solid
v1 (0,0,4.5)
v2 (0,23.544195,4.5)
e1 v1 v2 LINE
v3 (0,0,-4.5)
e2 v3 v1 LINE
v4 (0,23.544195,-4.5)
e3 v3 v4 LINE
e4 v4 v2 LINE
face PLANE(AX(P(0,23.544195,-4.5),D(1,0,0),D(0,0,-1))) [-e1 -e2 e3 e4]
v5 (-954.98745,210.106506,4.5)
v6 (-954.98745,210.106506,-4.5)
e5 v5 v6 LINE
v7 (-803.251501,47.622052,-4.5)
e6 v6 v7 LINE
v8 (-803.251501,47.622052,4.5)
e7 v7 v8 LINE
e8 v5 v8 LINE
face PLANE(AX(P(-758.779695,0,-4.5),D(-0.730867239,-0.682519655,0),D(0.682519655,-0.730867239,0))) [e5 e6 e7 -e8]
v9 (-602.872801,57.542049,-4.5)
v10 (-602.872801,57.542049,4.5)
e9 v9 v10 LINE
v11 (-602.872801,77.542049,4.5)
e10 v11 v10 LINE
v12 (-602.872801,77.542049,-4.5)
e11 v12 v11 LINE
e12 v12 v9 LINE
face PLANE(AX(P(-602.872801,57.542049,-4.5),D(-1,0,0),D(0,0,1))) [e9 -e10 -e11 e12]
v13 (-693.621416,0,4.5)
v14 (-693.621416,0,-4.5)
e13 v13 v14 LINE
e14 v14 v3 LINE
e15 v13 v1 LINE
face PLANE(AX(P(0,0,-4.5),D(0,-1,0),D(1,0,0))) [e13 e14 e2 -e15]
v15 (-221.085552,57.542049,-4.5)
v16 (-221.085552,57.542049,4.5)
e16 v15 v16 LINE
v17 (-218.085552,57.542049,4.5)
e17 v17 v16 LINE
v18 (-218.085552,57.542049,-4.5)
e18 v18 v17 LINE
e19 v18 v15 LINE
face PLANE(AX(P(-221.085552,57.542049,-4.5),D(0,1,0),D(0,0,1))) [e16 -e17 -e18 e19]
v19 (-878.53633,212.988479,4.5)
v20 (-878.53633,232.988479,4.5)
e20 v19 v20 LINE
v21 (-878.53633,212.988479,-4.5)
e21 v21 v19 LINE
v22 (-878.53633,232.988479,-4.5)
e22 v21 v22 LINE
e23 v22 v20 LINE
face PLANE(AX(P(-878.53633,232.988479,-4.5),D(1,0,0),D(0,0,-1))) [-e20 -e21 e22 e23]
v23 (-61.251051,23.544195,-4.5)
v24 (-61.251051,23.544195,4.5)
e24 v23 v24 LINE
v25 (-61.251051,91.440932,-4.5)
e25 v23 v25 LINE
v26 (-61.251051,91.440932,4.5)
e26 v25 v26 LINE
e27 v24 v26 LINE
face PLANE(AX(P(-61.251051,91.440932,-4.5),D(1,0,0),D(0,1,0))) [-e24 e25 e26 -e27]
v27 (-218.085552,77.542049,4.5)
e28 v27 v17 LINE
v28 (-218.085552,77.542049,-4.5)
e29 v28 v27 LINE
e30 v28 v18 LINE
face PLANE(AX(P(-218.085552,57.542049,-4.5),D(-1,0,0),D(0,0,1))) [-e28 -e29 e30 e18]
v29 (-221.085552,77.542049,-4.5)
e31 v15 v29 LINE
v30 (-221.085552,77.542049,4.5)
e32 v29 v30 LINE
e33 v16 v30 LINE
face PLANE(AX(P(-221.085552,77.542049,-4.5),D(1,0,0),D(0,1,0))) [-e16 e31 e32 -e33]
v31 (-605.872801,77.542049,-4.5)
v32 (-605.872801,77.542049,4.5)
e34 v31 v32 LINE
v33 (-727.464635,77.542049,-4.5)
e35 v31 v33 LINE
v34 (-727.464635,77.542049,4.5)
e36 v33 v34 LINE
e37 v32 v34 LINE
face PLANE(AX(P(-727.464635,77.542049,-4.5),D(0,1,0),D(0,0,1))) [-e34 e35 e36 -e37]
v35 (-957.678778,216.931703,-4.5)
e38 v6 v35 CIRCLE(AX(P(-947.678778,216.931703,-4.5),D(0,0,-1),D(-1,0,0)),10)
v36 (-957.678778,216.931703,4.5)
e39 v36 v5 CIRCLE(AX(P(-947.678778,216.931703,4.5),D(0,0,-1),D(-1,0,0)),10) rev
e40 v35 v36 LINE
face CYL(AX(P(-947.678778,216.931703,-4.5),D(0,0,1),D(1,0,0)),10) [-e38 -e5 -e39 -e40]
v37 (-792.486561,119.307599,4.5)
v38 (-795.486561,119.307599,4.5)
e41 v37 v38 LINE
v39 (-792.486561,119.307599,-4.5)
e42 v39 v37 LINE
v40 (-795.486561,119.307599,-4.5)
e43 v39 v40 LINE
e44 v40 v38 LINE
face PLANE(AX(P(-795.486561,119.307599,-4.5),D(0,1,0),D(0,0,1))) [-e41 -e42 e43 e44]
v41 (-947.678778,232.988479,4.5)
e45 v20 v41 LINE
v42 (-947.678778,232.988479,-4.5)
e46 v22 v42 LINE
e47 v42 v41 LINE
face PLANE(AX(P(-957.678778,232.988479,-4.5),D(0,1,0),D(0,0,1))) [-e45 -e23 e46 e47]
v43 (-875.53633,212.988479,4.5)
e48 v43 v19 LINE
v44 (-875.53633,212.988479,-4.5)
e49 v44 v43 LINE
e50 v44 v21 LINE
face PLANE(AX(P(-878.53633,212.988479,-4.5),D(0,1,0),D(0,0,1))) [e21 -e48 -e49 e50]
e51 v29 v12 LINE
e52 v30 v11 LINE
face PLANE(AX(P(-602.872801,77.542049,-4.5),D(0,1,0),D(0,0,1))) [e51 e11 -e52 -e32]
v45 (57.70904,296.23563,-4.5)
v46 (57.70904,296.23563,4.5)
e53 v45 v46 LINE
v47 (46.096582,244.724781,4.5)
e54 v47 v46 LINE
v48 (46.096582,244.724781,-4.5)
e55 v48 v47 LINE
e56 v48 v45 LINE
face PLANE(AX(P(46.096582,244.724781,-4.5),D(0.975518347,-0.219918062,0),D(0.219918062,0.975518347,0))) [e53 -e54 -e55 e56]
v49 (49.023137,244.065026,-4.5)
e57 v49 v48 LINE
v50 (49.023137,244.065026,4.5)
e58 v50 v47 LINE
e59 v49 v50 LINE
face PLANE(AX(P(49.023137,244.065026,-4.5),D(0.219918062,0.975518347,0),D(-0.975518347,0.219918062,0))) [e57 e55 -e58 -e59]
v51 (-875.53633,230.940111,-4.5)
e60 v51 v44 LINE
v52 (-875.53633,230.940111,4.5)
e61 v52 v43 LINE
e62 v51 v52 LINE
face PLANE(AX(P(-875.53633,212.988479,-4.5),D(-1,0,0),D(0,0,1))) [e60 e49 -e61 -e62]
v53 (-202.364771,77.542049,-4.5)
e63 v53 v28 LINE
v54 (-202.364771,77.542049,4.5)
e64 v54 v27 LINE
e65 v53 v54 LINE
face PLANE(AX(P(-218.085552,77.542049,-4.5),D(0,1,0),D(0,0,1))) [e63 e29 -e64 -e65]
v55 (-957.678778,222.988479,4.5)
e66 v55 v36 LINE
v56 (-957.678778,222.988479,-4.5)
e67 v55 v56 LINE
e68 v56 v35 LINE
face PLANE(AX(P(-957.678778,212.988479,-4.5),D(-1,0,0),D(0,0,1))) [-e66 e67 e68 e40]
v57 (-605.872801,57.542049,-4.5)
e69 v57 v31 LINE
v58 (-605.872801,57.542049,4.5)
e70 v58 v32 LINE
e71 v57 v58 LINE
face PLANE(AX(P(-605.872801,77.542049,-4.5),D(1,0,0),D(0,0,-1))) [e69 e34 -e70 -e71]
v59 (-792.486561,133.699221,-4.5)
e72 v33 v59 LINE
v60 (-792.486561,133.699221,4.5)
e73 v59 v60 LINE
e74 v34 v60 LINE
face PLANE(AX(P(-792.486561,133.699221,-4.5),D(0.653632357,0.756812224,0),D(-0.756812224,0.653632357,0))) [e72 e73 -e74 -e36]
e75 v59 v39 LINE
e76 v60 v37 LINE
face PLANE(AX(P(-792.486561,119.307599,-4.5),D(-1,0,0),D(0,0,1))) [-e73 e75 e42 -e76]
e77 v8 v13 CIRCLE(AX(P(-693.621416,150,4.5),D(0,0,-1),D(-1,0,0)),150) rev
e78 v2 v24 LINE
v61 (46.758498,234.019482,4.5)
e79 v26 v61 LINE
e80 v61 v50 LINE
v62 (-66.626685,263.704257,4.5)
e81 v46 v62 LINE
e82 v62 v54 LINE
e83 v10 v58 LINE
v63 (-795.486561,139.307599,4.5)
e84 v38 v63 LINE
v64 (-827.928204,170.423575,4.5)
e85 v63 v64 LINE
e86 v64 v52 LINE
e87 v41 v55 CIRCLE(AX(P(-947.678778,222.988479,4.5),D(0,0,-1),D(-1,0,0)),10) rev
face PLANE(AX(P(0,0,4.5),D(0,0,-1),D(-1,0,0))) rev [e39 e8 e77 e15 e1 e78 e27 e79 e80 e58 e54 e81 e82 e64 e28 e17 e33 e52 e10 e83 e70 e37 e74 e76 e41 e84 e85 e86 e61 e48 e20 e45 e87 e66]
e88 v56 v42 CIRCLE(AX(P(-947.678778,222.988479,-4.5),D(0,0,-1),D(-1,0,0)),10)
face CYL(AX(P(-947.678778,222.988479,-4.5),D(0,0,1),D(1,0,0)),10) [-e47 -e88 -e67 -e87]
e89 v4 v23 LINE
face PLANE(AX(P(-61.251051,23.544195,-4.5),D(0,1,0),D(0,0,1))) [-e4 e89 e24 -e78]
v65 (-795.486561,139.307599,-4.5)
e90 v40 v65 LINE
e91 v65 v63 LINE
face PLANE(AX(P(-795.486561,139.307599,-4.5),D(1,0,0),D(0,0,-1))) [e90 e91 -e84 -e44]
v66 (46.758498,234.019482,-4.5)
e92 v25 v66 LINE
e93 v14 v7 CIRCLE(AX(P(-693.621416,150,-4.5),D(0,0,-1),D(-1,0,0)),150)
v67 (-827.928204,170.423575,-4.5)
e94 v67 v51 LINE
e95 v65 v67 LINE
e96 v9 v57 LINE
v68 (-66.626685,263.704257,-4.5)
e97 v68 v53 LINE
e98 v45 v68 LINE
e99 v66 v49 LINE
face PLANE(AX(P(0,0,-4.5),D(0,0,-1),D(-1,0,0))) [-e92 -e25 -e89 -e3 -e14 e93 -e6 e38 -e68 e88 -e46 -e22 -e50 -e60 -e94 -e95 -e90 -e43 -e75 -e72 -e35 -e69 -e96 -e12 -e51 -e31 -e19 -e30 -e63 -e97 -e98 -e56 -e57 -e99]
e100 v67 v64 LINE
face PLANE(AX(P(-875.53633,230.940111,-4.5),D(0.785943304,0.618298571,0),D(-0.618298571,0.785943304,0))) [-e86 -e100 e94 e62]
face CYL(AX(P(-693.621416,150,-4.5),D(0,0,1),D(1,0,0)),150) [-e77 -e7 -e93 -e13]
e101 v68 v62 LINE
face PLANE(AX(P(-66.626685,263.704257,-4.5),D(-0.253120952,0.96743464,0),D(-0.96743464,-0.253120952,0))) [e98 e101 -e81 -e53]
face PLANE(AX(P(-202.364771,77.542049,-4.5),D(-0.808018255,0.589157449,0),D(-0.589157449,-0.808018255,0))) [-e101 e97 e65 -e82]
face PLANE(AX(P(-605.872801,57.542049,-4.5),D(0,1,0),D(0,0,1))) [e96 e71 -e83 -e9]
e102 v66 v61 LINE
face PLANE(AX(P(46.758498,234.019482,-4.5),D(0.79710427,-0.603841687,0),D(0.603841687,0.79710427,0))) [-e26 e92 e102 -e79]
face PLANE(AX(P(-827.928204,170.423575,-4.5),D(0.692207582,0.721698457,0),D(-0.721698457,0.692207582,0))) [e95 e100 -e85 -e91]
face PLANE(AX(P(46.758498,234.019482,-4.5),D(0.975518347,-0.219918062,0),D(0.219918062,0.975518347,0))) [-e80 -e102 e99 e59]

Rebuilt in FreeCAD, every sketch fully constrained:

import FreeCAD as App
import Part
import Sketcher


def edges_at(feature, points):
    """Names of the edges that pass closest to the given points."""
    edges = feature.Shape.Edges
    near = lambda p: min(range(len(edges)), key=lambda i: edges[i].distToShape(Part.Vertex(*p))[0])
    return sorted({f"Edge{near(p) + 1}" for p in points})


def add_polygon(sketch, points):
    """Adds a closed chain of lines whose ends are joined by coincident constraints."""
    first, n = sketch.GeometryCount, len(points)
    for a, b in zip(points, points[1:] + points[:1]):
        sketch.addGeometry(Part.LineSegment(App.Vector(*a, 0), App.Vector(*b, 0)), False)
    for i in range(n):
        sketch.addConstraint(Sketcher.Constraint("Coincident", first + i, 2, first + (i + 1) % n, 1))

doc = App.newDocument("Part")
body = doc.addObject("PartDesign::Body", "Body")

# Sketch on XY plane
sketch1 = body.newObject("Sketcher::SketchObject", "Sketch")
sketch1.AttachmentSupport = (doc.getObject("XY_Plane"), [""])
sketch1.MapMode = "FlatFace"
add_polygon(sketch1, [(-758.779695, 0), (0, 0), (0, 23.544195), (-61.251051, 23.544195), (-61.251051, 91.440932), (46.758498, 234.019482), (49.023137, 244.065026), (46.096582, 244.724781), (57.70904, 296.23563), (-66.626685, 263.704257), (-202.364771, 77.542049), (-218.085552, 77.542049), (-218.085552, 57.542049), (-221.085552, 57.542049), (-221.085552, 77.542049), (-602.872801, 77.542049), (-602.872801, 57.542049), (-605.872801, 57.542049), (-605.872801, 77.542049), (-727.464635, 77.542049), (-792.486561, 133.699221), (-792.486561, 119.307599), (-795.486561, 119.307599), (-795.486561, 139.307599), (-827.928204, 170.423575), (-875.53633, 230.940111), (-875.53633, 212.988479), (-878.53633, 212.988479), (-878.53633, 232.988479), (-957.678778, 232.988479), (-957.678778, 212.988479)])  # lines 0-30
sketch1.addConstraint([
    Sketcher.Constraint("Horizontal", 0),
    Sketcher.Constraint("Vertical", 1),
    Sketcher.Constraint("Horizontal", 2),
    Sketcher.Constraint("Vertical", 3),
    Sketcher.Constraint("Horizontal", 10),
    Sketcher.Constraint("Vertical", 11),
    Sketcher.Constraint("Horizontal", 12),
    Sketcher.Constraint("Vertical", 13),
    Sketcher.Constraint("Horizontal", 14),
    Sketcher.Constraint("Vertical", 15),
    Sketcher.Constraint("Horizontal", 16),
    Sketcher.Constraint("Vertical", 17),
    Sketcher.Constraint("Horizontal", 18),
    Sketcher.Constraint("Vertical", 20),
    Sketcher.Constraint("Horizontal", 21),
    Sketcher.Constraint("Vertical", 22),
    Sketcher.Constraint("Vertical", 25),
    Sketcher.Constraint("Horizontal", 26),
    Sketcher.Constraint("Vertical", 27),
    Sketcher.Constraint("Horizontal", 28),
    Sketcher.Constraint("Vertical", 29),
    Sketcher.Constraint("Coincident", 0, 2, -1, 1),
    Sketcher.Constraint("DistanceX", 12, 2, 12, 1, 3.0),
    Sketcher.Constraint("DistanceX", 16, 2, 16, 1, 3.0),
    Sketcher.Constraint("DistanceX", 21, 2, 21, 1, 3.0),
    Sketcher.Constraint("DistanceX", 26, 2, 26, 1, 3.0),
    Sketcher.Constraint("DistanceY", 11, 2, 11, 1, 20.0),
    Sketcher.Constraint("DistanceY", 13, 1, 13, 2, 20.0),
    Sketcher.Constraint("DistanceY", 15, 2, 15, 1, 20.0),
    Sketcher.Constraint("DistanceY", 17, 1, 17, 2, 20.0),
    Sketcher.Constraint("DistanceY", 22, 1, 22, 2, 20.0),
    Sketcher.Constraint("DistanceY", 27, 1, 27, 2, 20.0),
    Sketcher.Constraint("DistanceY", 29, 2, 29, 1, 20.0),
    Sketcher.Constraint("Distance", 6, 3.0),
    Sketcher.Constraint("Distance", 23, 44.951799),
    Sketcher.Constraint("DistanceX", 2, 2, 2, 1, 61.251051),
    Sketcher.Constraint("DistanceX", 10, 2, 10, 1, 15.720781),
    Sketcher.Constraint("DistanceX", 14, 2, 14, 1, 381.787249),
    Sketcher.Constraint("DistanceY", 25, 2, 25, 1, 17.951632),
    Sketcher.Constraint("DistanceX", 14, 2, -1, 1, 602.872801),
    Sketcher.Constraint("DistanceY", -1, 1, 20, 2, 119.307599),
    Sketcher.Constraint("DistanceY", 4, 2, 6, 2, 10.705299),
    Sketcher.Constraint("DistanceY", 3, 2, 7, 2, 204.794698),
    Sketcher.Constraint("Distance", 4, 178.870639),
    Sketcher.Constraint("Distance", 8, 128.521059),
    Sketcher.Constraint("DistanceX", 0, 1, 0, 2, 758.779695),
    Sketcher.Constraint("DistanceX", 18, 2, 18, 1, 121.591834),
    Sketcher.Constraint("DistanceX", 28, 2, 28, 1, 79.142447),
    Sketcher.Constraint("DistanceY", 1, 1, 1, 2, 23.544195),
    Sketcher.Constraint("DistanceY", 3, 1, 3, 2, 67.896736),
    Sketcher.Constraint("DistanceY", 20, 2, 20, 1, 14.391623),
    Sketcher.Constraint("DistanceY", -1, 1, 4, 2, 234.019482),
    Sketcher.Constraint("DistanceX", -1, 1, 6, 2, 46.096582),
    Sketcher.Constraint("DistanceX", -1, 1, 7, 2, 57.70904),
    Sketcher.Constraint("DistanceY", -1, 1, 9, 2, 77.542049),
    Sketcher.Constraint("DistanceX", 19, 2, -1, 1, 792.486561),
    Sketcher.Constraint("DistanceX", 24, 2, -1, 1, 875.53633),
    Sketcher.Constraint("DistanceY", -1, 1, 24, 2, 230.940111),
    Sketcher.Constraint("DistanceX", 4, 2, 5, 2, 2.264639),
    Sketcher.Constraint("DistanceX", 8, 2, 5, 2, 115.649821),
    Sketcher.Constraint("DistanceX", 23, 2, 18, 2, 100.463569),
])
pad1 = body.newObject("PartDesign::Pad", "Pad")
pad1.Profile = sketch1
pad1.Type = "TwoLengths"
pad1.Length = 4.5
pad1.Length2 = 4.5
doc.recompute()

fillet = body.newObject("PartDesign::Fillet", "Fillet")
fillet.Base = (pad1, edges_at(pad1, [(-758.78, 0, 0)]))
fillet.Radius = 150
doc.recompute()

fillet2 = body.newObject("PartDesign::Fillet", "Fillet001")
fillet2.Base = (fillet, edges_at(fillet, [(-957.679, 212.988, 0), (-957.679, 232.988, 0)]))
fillet2.Radius = 10

doc.recompute()
